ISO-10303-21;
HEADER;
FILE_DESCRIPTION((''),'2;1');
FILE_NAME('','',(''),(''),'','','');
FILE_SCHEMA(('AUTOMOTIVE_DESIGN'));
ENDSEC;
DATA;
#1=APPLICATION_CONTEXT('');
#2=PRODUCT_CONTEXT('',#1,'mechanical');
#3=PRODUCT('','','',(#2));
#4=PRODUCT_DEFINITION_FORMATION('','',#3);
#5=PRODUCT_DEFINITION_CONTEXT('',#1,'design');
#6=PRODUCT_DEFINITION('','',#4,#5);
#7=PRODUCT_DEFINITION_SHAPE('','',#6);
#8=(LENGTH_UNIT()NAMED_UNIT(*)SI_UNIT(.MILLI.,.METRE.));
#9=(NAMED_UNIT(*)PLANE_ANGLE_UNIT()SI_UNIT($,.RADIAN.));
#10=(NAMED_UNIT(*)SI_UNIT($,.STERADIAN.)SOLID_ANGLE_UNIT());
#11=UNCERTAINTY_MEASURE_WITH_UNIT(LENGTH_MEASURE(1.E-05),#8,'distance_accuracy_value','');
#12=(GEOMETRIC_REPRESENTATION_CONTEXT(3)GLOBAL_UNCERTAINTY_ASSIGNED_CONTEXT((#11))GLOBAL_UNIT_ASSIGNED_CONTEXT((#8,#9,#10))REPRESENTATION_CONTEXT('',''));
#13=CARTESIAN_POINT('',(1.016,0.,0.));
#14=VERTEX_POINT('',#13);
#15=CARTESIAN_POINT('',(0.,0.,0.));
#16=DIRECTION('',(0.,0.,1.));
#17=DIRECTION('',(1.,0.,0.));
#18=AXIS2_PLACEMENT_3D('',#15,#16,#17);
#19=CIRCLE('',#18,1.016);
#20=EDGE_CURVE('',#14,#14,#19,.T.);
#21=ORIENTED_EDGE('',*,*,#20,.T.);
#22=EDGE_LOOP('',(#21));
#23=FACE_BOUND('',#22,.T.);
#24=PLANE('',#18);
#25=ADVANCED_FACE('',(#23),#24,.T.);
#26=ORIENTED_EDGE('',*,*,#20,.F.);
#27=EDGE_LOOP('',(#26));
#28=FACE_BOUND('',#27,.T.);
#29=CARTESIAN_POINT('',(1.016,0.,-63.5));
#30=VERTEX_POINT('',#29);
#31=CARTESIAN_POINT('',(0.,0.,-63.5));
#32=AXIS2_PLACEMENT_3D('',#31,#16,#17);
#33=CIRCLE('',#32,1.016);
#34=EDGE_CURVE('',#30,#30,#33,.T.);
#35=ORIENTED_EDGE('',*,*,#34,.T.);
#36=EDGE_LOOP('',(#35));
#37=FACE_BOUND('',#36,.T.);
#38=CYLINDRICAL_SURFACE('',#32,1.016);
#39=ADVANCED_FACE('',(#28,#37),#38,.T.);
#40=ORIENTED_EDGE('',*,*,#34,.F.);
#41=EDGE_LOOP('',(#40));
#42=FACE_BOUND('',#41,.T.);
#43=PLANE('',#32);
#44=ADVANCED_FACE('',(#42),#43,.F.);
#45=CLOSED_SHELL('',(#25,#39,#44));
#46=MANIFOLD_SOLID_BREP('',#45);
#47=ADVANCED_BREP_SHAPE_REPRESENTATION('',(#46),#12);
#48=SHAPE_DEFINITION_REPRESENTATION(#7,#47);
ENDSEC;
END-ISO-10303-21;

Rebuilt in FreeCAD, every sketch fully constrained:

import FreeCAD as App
import Part
import Sketcher

V = App.Vector
Q = App.Units.Quantity

doc = App.newDocument("Part")
body = doc.addObject("PartDesign::Body", "Body")

sketch1 = body.newObject("Sketcher::SketchObject", "Sketch")
sketch1.AttachmentSupport = (doc.getObject("XY_Plane"), [""])
sketch1.MapMode = "FlatFace"
sketch1.addGeometry(Part.Circle(V(0, 0, 0), V(0, 0, 1), 1), False)
sketch1.addConstraint(Sketcher.Constraint("Coincident", 0, 3, -1, 1))
sketch1.addConstraint(Sketcher.Constraint("Diameter", 0, Q("0.08 in")))
pad1 = body.newObject("PartDesign::Pad", "Pad")
pad1.Profile = sketch1
pad1.Length = Q("2.5 in")
pad1.Reversed = True

doc.recompute()
